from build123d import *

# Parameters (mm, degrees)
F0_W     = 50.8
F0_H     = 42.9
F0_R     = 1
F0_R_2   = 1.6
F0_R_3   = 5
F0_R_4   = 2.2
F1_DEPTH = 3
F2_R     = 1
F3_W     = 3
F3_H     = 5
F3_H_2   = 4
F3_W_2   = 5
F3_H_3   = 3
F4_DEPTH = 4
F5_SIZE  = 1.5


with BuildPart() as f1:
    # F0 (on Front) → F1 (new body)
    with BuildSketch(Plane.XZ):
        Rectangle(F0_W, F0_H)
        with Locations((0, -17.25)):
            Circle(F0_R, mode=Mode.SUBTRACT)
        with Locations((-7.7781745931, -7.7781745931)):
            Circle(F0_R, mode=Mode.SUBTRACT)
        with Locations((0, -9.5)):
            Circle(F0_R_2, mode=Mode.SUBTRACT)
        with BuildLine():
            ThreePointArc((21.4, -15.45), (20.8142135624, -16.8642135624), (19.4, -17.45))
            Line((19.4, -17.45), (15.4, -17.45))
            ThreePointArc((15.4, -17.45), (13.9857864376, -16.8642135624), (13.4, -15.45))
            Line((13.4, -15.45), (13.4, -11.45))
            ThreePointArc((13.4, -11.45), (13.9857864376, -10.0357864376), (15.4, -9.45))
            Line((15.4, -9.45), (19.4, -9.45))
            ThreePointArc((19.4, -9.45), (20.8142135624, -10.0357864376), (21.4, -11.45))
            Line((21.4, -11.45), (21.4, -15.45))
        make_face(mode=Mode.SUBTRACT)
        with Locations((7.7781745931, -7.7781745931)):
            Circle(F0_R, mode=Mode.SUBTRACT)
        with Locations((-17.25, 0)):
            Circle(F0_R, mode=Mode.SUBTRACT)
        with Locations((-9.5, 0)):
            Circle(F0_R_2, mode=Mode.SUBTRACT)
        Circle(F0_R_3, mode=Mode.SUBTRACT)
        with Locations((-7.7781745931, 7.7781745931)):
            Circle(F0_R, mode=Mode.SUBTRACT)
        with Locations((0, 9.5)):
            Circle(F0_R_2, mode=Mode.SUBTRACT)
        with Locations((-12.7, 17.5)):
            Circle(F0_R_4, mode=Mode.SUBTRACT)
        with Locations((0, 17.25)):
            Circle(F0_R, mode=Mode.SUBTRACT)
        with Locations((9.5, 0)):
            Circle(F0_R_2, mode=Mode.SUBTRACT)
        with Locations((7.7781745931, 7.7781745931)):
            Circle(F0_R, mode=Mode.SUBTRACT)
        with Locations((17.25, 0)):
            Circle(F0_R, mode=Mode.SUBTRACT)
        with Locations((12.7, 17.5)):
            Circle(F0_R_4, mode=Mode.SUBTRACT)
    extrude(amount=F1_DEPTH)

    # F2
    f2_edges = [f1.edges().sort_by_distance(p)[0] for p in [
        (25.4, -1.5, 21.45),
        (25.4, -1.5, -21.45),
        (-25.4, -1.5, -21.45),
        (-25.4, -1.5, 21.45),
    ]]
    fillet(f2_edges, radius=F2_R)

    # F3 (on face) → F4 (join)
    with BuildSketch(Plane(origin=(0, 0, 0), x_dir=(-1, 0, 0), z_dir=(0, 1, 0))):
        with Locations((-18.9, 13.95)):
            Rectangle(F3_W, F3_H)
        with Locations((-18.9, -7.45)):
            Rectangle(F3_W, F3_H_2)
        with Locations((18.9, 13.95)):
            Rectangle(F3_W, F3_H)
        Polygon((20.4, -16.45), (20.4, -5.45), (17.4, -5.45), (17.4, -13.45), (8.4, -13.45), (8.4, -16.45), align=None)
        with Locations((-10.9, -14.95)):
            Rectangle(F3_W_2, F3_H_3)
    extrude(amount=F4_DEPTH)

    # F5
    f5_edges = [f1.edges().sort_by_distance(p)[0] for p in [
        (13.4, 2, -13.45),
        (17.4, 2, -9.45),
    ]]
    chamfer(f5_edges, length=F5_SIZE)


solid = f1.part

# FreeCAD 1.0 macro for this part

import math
import FreeCAD as App
import Part
import Sketcher

V = App.Vector


def edges_at(feature, points):
    """Names of the edges that pass closest to the given points."""
    edges = feature.Shape.Edges
    near = lambda p: min(range(len(edges)), key=lambda i: edges[i].distToShape(Part.Vertex(*p))[0])
    return sorted({f"Edge{near(p) + 1}" for p in points})


def add_polygon(sketch, points):
    """Adds a closed chain of lines whose ends are joined by coincident constraints."""
    first, n = sketch.GeometryCount, len(points)
    for a, b in zip(points, points[1:] + points[:1]):
        sketch.addGeometry(Part.LineSegment(App.Vector(*a, 0), App.Vector(*b, 0)), False)
    for i in range(n):
        sketch.addConstraint(Sketcher.Constraint("Coincident", first + i, 2, first + (i + 1) % n, 1))

doc = App.newDocument("Part")
params = doc.addObject("Spreadsheet::Sheet", "Params")
for row, (alias, value) in enumerate([
    ("sketch1_diameter", "2 mm"),
    ("sketch1_diameter2", "10 mm"),
    ("sketch1_radius", "2 mm"),
    ("sketch1_diameter3", "3.2 mm"),
    ("sketch1_diameter4", "4.4 mm"),
    ("pad1_length", "3 mm"),
    ("fillet_radius", "1 mm"),
    ("sketch2_width", "3 mm"),
    ("sketch2_width2", "9 mm"),
    ("sketch2_width3", "5 mm"),
    ("sketch2_height", "4 mm"),
    ("sketch2_height2", "11 mm"),
    ("pad2_length", "4 mm"),
    ("chamfer_size", "1.5 mm"),
], start=1):
    params.set(f"A{row}", alias)
    params.set(f"B{row}", "=" + value)
    params.setAlias(f"B{row}", alias)

body = doc.addObject("PartDesign::Body", "Body")

sketch1 = body.newObject("Sketcher::SketchObject", "Sketch")
sketch1.AttachmentSupport = (doc.getObject("XZ_Plane"), [""])
sketch1.MapMode = "FlatFace"
add_polygon(sketch1, [(-25.4, 21.4), (-25.4, -21.4), (25.4, -21.4), (25.4, 21.4)])
sketch1.addGeometry(Part.Circle(V(0, -17.2, 0), V(0, 0, 1), 1), False)
sketch1.addGeometry(Part.Circle(V(0, -9.5, 0), V(0, 0, 1), 1.6), False)
sketch1.addGeometry(Part.Circle(V(-17.2, 0, 0), V(0, 0, 1), 1), False)
sketch1.addGeometry(Part.Circle(V(-9.5, 0, 0), V(0, 0, 1), 1.6), False)
sketch1.addGeometry(Part.Circle(V(-7.8, -7.8, 0), V(0, 0, 1), 1), False)
sketch1.addGeometry(Part.Circle(V(0, 0, 0), V(0, 0, 1), 5), False)
sketch1.addGeometry(Part.LineSegment(V(21.4, -11.4, 0), V(21.4, -15.4, 0)), False)
sketch1.addGeometry(Part.ArcOfCircle(Part.Circle(V(19.4, -15.4, 0), V(0, 0, 1), 2), math.radians(-90), math.radians(0)), False)
sketch1.addGeometry(Part.LineSegment(V(19.4, -17.4, 0), V(15.4, -17.4, 0)), False)
sketch1.addGeometry(Part.ArcOfCircle(Part.Circle(V(15.4, -15.4, 0), V(0, 0, 1), 2), math.radians(180), math.radians(270)), False)
sketch1.addGeometry(Part.LineSegment(V(13.4, -15.4, 0), V(13.4, -11.4, 0)), False)
sketch1.addGeometry(Part.ArcOfCircle(Part.Circle(V(15.4, -11.4, 0), V(0, 0, 1), 2), math.radians(90), math.radians(180)), False)
sketch1.addGeometry(Part.LineSegment(V(15.4, -9.4, 0), V(19.4, -9.4, 0)), False)
sketch1.addGeometry(Part.ArcOfCircle(Part.Circle(V(19.4, -11.4, 0), V(0, 0, 1), 2), math.radians(0), math.radians(90)), False)
sketch1.addGeometry(Part.Circle(V(7.8, -7.8, 0), V(0, 0, 1), 1), False)
sketch1.addGeometry(Part.Circle(V(9.5, 0, 0), V(0, 0, 1), 1.6), False)
sketch1.addGeometry(Part.Circle(V(17.2, 0, 0), V(0, 0, 1), 1), False)
sketch1.addGeometry(Part.Circle(V(-7.8, 7.8, 0), V(0, 0, 1), 1), False)
sketch1.addGeometry(Part.Circle(V(0, 9.5, 0), V(0, 0, 1), 1.6), False)
sketch1.addGeometry(Part.Circle(V(-12.7, 17.5, 0), V(0, 0, 1), 2.2), False)
sketch1.addGeometry(Part.Circle(V(0, 17.2, 0), V(0, 0, 1), 1), False)
sketch1.addGeometry(Part.Circle(V(7.8, 7.8, 0), V(0, 0, 1), 1), False)
sketch1.addGeometry(Part.Circle(V(12.7, 17.5, 0), V(0, 0, 1), 2.2), False)
sketch1.addConstraint([
    Sketcher.Constraint("Tangent", 10, 2, 11, 2),
    Sketcher.Constraint("Tangent", 11, 1, 12, 1),
    Sketcher.Constraint("Tangent", 12, 2, 13, 2),
    Sketcher.Constraint("Tangent", 13, 1, 14, 1),
    Sketcher.Constraint("Tangent", 14, 2, 15, 2),
    Sketcher.Constraint("Tangent", 15, 1, 16, 1),
    Sketcher.Constraint("Tangent", 16, 2, 17, 2),
    Sketcher.Constraint("Tangent", 17, 1, 10, 1),
    Sketcher.Constraint("Vertical", 0),
    Sketcher.Constraint("Horizontal", 1),
    Sketcher.Constraint("Vertical", 2),
    Sketcher.Constraint("Horizontal", 3),
    Sketcher.Constraint("Vertical", 10),
    Sketcher.Constraint("Horizontal", 12),
    Sketcher.Constraint("Vertical", 14),
    Sketcher.Constraint("Horizontal", 16),
    Sketcher.Constraint("Coincident", 9, 3, -1, 1),
    Sketcher.Constraint("Equal", 4, 6),
    Sketcher.Constraint("Equal", 5, 7),
    Sketcher.Constraint("Equal", 6, 8),
    Sketcher.Constraint("Equal", 11, 13),
    Sketcher.Constraint("Equal", 13, 15),
    Sketcher.Constraint("Equal", 15, 17),
    Sketcher.Constraint("Equal", 8, 18),
    Sketcher.Constraint("Equal", 7, 19),
    Sketcher.Constraint("Equal", 18, 20),
    Sketcher.Constraint("Equal", 20, 21),
    Sketcher.Constraint("Equal", 19, 22),
    Sketcher.Constraint("Equal", 21, 24),
    Sketcher.Constraint("Equal", 24, 25),
    Sketcher.Constraint("Equal", 23, 26),
    Sketcher.Constraint("Symmetric", 7, 3, 19, 3, -1, 1),
    Sketcher.Constraint("Symmetric", 6, 3, 20, 3, -1, 1),
    Sketcher.Constraint("Symmetric", 18, 3, 21, 3, -1, 1),
    Sketcher.Constraint("Symmetric", 5, 3, 22, 3, -1, 1),
    Sketcher.Constraint("Symmetric", 4, 3, 24, 3, -1, 1),
    Sketcher.Constraint("Symmetric", 8, 3, 25, 3, -1, 1),
    Sketcher.Constraint("Symmetric", 0, 2, 2, 2, -1, 1),
    Sketcher.Constraint("Symmetric", 8, 3, 18, 3, -2),
    Sketcher.Constraint("Symmetric", 23, 3, 26, 3, -2),
    Sketcher.Constraint("PointOnObject", 4, 3, -2),
    Sketcher.Constraint("PointOnObject", 5, 3, -2),
    Sketcher.Constraint("PointOnObject", 6, 3, -1),
    Sketcher.Constraint("PointOnObject", 7, 3, -1),
    Sketcher.Constraint("Equal", 16, 10),
    Sketcher.Constraint("Diameter", 4, 2.0),
    Sketcher.Constraint("Diameter", 9, 10.0),
    Sketcher.Constraint("Radius", 11, 2.0),
    Sketcher.Constraint("Diameter", 5, 3.2),
    Sketcher.Constraint("Diameter", 23, 4.4),
    Sketcher.Constraint("DistanceX", 12, 2, 12, 1, 4.0),
    Sketcher.Constraint("DistanceX", 1, 1, 1, 2, 50.8),
    Sketcher.Constraint("DistanceY", 0, 2, 0, 1, 42.9),
    Sketcher.Constraint("DistanceY", 22, 3, 23, 3, 8.0),
    Sketcher.Constraint("DistanceX", 11, 3, 1, 2, 6.0),
    Sketcher.Constraint("DistanceY", 1, 2, 11, 3, 6.0),
    Sketcher.Constraint("DistanceY", 5, 3, -1, 1, 9.5),
    Sketcher.Constraint("DistanceX", 7, 3, -1, 1, 9.5),
    Sketcher.Constraint("DistanceX", 23, 3, -1, 1, 12.7),
    Sketcher.Constraint("DistanceY", 4, 3, 11, 3, 1.8),
    Sketcher.Constraint("DistanceX", 6, 3, -1, 1, 17.25),
    Sketcher.Constraint("DistanceY", 8, 3, 21, 3, 15.556349),
    Sketcher.Constraint("DistanceX", 8, 3, -1, 1, 7.778175),
])
sketch1.setExpression("Constraints[49]", "Params.sketch1_diameter")
sketch1.setExpression("Constraints[50]", "Params.sketch1_diameter2")
sketch1.setExpression("Constraints[51]", "Params.sketch1_radius")
sketch1.setExpression("Constraints[52]", "Params.sketch1_diameter3")
sketch1.setExpression("Constraints[53]", "Params.sketch1_diameter4")
pad1 = body.newObject("PartDesign::Pad", "Pad")
pad1.Profile = sketch1
pad1.setExpression("Length", "Params.pad1_length")
doc.recompute()

fillet = body.newObject("PartDesign::Fillet", "Fillet")
fillet.Base = (pad1, edges_at(pad1, [
    (25.4, -1.5, 21.45),
    (25.4, -1.5, -21.45),
    (-25.4, -1.5, -21.45),
    (-25.4, -1.5, 21.45),
]))
fillet.setExpression("Radius", "Params.fillet_radius")

sketch2 = body.newObject("Sketcher::SketchObject", "Sketch001")
sketch2.AttachmentSupport = (doc.getObject("XZ_Plane"), [""])
sketch2.MapMode = "FlatFace"
add_polygon(sketch2, [(20.4, 16.4), (20.4, 11.4), (17.4, 11.4), (17.4, 16.4)])
add_polygon(sketch2, [(20.4, -5.5), (20.4, -9.4), (17.4, -9.4), (17.4, -5.5)])
add_polygon(sketch2, [(-17.4, 16.4), (-17.4, 11.4), (-20.4, 11.4), (-20.4, 16.4)])
add_polygon(sketch2, [(-20.4, -16.4), (-20.4, -5.5), (-17.4, -5.5), (-17.4, -13.4), (-8.4, -13.4), (-8.4, -16.4)])
add_polygon(sketch2, [(13.4, -13.4), (13.4, -16.4), (8.4, -16.4), (8.4, -13.4)])
sketch2.addConstraint([
    Sketcher.Constraint("Vertical", 0),
    Sketcher.Constraint("Horizontal", 1),
    Sketcher.Constraint("Vertical", 2),
    Sketcher.Constraint("Horizontal", 3),
    Sketcher.Constraint("Vertical", 4),
    Sketcher.Constraint("Horizontal", 5),
    Sketcher.Constraint("Vertical", 6),
    Sketcher.Constraint("Horizontal", 7),
    Sketcher.Constraint("Vertical", 8),
    Sketcher.Constraint("Horizontal", 9),
    Sketcher.Constraint("Vertical", 10),
    Sketcher.Constraint("Horizontal", 11),
    Sketcher.Constraint("Vertical", 12),
    Sketcher.Constraint("Horizontal", 13),
    Sketcher.Constraint("Vertical", 14),
    Sketcher.Constraint("Horizontal", 15),
    Sketcher.Constraint("Vertical", 16),
    Sketcher.Constraint("Horizontal", 17),
    Sketcher.Constraint("Vertical", 18),
    Sketcher.Constraint("Horizontal", 19),
    Sketcher.Constraint("Vertical", 20),
    Sketcher.Constraint("Horizontal", 21),
    Sketcher.Constraint("Symmetric", 3, 2, 17, 2, -1, 1),
    Sketcher.Constraint("Symmetric", 1, 2, 8, 2, -2),
    Sketcher.Constraint("Symmetric", 3, 2, 10, 2, -2),
    Sketcher.Constraint("Symmetric", 7, 2, 12, 2, -2),
    Sketcher.Constraint("Symmetric", 16, 2, 19, 2, -2),
    Sketcher.Constraint("Horizontal", 15, 2, 20, 2),
    Sketcher.Constraint("Vertical", 2, 2, 5, 2),
    Sketcher.Constraint("Vertical", 11, 2, 13, 2),
    Sketcher.Constraint("Equal", 21, 0),
    Sketcher.Constraint("Equal", 13, 16),
    Sketcher.Constraint("DistanceX", 1, 2, 1, 1, 3.0),
    Sketcher.Constraint("DistanceX", 15, 1, 15, 2, 9.0),
    Sketcher.Constraint("DistanceX", 19, 2, 19, 1, 5.0),
    Sketcher.Constraint("DistanceY", 4, 2, 4, 1, 4.0),
    Sketcher.Constraint("DistanceY", 12, 1, 12, 2, 11.0),
    Sketcher.Constraint("DistanceX", -1, 1, 0, 2, 20.4),
    Sketcher.Constraint("DistanceY", 4, 2, 0, 2, 20.9),
])
sketch2.setExpression("Constraints[54]", "Params.sketch2_width")
sketch2.setExpression("Constraints[55]", "Params.sketch2_width2")
sketch2.setExpression("Constraints[56]", "Params.sketch2_width3")
sketch2.setExpression("Constraints[57]", "Params.sketch2_height")
sketch2.setExpression("Constraints[58]", "Params.sketch2_height2")
pad2 = body.newObject("PartDesign::Pad", "Pad001")
pad2.Profile = sketch2
pad2.setExpression("Length", "Params.pad2_length")
pad2.Reversed = True
doc.recompute()

chamfer = body.newObject("PartDesign::Chamfer", "Chamfer")
chamfer.Base = (pad2, edges_at(pad2, [(13.4, 2, -13.45), (17.4, 2, -9.45)]))
chamfer.setExpression("Size", "Params.chamfer_size")

doc.recompute()
